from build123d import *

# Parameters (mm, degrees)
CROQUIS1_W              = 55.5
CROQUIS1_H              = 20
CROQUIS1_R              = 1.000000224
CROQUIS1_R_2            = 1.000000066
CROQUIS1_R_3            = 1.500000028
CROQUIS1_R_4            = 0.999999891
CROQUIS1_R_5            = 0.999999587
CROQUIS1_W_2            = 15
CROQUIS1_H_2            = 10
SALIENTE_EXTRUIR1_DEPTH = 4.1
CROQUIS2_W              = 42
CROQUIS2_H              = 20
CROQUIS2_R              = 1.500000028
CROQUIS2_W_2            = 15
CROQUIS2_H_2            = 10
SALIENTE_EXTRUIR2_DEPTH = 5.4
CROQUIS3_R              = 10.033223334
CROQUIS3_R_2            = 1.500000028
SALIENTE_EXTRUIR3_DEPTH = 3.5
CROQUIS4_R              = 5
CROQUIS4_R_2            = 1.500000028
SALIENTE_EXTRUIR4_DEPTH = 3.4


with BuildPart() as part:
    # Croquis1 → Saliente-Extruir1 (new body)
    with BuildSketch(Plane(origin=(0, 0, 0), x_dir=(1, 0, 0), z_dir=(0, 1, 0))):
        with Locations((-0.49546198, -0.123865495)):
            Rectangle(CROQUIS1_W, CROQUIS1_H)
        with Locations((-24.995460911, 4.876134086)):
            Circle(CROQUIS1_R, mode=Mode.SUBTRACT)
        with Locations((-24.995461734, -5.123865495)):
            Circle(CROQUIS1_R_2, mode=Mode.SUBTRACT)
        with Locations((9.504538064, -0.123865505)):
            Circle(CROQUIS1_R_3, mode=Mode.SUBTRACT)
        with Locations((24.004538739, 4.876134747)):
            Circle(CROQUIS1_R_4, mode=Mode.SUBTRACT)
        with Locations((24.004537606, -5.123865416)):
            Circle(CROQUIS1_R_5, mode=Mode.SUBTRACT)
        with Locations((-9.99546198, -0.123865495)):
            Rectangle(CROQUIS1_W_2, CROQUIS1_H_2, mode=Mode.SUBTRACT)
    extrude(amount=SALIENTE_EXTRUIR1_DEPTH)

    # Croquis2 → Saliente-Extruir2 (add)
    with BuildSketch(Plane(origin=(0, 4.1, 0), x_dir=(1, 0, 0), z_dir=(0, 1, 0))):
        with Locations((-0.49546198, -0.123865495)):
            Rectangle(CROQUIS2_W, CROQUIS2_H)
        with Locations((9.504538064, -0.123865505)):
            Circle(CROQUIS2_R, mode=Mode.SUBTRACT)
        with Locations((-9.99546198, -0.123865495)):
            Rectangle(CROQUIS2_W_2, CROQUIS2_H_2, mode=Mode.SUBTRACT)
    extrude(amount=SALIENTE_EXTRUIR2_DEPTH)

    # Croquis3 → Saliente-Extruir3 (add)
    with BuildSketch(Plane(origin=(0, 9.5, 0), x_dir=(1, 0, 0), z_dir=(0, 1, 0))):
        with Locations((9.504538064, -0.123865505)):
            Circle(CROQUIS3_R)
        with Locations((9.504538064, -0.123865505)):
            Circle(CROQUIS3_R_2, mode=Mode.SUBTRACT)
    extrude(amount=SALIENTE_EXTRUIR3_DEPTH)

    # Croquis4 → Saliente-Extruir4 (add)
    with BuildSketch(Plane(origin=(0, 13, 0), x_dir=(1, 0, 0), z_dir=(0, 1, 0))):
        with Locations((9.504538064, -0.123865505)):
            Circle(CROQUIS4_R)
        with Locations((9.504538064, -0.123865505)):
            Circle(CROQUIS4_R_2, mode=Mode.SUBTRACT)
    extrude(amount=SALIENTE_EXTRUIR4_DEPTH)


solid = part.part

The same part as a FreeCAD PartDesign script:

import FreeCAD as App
import Part
import Sketcher

V = App.Vector


def add_polygon(sketch, points):
    """Adds a closed chain of lines whose ends are joined by coincident constraints."""
    first, n = sketch.GeometryCount, len(points)
    for a, b in zip(points, points[1:] + points[:1]):
        sketch.addGeometry(Part.LineSegment(App.Vector(*a, 0), App.Vector(*b, 0)), False)
    for i in range(n):
        sketch.addConstraint(Sketcher.Constraint("Coincident", first + i, 2, first + (i + 1) % n, 1))

doc = App.newDocument("Part")
body = doc.addObject("PartDesign::Body", "Body")

# Sketch on XZ plane
sketch1 = body.newObject("Sketcher::SketchObject", "Sketch")
sketch1.AttachmentSupport = (doc.getObject("XZ_Plane"), [""])
sketch1.MapMode = "FlatFace"
add_polygon(sketch1, [(-28.2, -9.9), (-28.2, 10.1), (27.3, 10.1), (27.3, -9.9)])  # lines 0-3
sketch1.addGeometry(Part.Circle(V(-25, 5.1, 0), V(0, 0, 1), 1), False)  # 4
add_polygon(sketch1, [(-2.5, 5.1), (-17.5, 5.1), (-17.5, -4.9), (-2.5, -4.9)])  # lines 5-8
sketch1.addGeometry(Part.Circle(V(24, 5.1, 0), V(0, 0, 1), 1), False)  # 9
sketch1.addGeometry(Part.Circle(V(9.5, 0.1, 0), V(0, 0, 1), 1.5), False)  # 10
sketch1.addGeometry(Part.Circle(V(-25, -4.9, 0), V(0, 0, 1), 1), False)  # 11
sketch1.addGeometry(Part.Circle(V(24, -4.9, 0), V(0, 0, 1), 1), False)  # 12
sketch1.addConstraint([
    Sketcher.Constraint("Vertical", 0),
    Sketcher.Constraint("Horizontal", 1),
    Sketcher.Constraint("Vertical", 2),
    Sketcher.Constraint("Horizontal", 3),
    Sketcher.Constraint("Horizontal", 5),
    Sketcher.Constraint("Vertical", 6),
    Sketcher.Constraint("Horizontal", 7),
    Sketcher.Constraint("Vertical", 8),
    Sketcher.Constraint("Equal", 4, 9),
    Sketcher.Constraint("Equal", 9, 11),
    Sketcher.Constraint("Equal", 11, 12),
    Sketcher.Constraint("Horizontal", 4, 3, 9, 3),
    Sketcher.Constraint("Horizontal", 11, 3, 12, 3),
    Sketcher.Constraint("Horizontal", 9, 3, 5, 2),
    Sketcher.Constraint("Horizontal", 12, 3, 6, 2),
    Sketcher.Constraint("Vertical", 4, 3, 11, 3),
    Sketcher.Constraint("Vertical", 9, 3, 12, 3),
    Sketcher.Constraint("Diameter", 4, 2.0),
    Sketcher.Constraint("Diameter", 10, 3.0),
    Sketcher.Constraint("DistanceX", 5, 2, 5, 1, 15.0),
    Sketcher.Constraint("DistanceY", 0, 1, 0, 2, 20.0),
    Sketcher.Constraint("DistanceY", 6, 2, 6, 1, 10.0),
    Sketcher.Constraint("DistanceX", 1, 1, 1, 2, 55.5),
    Sketcher.Constraint("DistanceX", 4, 3, 9, 3, 48.999999),
    Sketcher.Constraint("DistanceY", 10, 3, 9, 3, 5.0),
    Sketcher.Constraint("DistanceY", 4, 3, 0, 2, 5.0),
    Sketcher.Constraint("DistanceX", 5, 2, 10, 3, 27.0),
    Sketcher.Constraint("DistanceX", 10, 3, 9, 3, 14.5),
    Sketcher.Constraint("DistanceX", 0, 2, 4, 3, 3.25),
    Sketcher.Constraint("DistanceX", 4, 3, -1, 1, 24.995462),
    Sketcher.Constraint("DistanceY", -1, 1, 4, 3, 5.123865),
])
pad1 = body.newObject("PartDesign::Pad", "Pad")
pad1.Profile = sketch1
pad1.Length = 4.1
pad1.Reversed = True

# Sketch on XZ plane
sketch2 = body.newObject("Sketcher::SketchObject", "Sketch001")
sketch2.AttachmentSupport = (doc.getObject("XZ_Plane"), [""])
sketch2.MapMode = "FlatFace"
sketch2.AttachmentOffset = App.Placement(V(0, 0, -4.1), App.Rotation())
add_polygon(sketch2, [(-21.5, -9.9), (-21.5, 10.1), (20.5, 10.1), (20.5, -9.9)])  # lines 0-3
sketch2.addGeometry(Part.Circle(V(9.5, 0.1, 0), V(0, 0, 1), 1.5), False)  # 4
add_polygon(sketch2, [(-2.5, 5.1), (-17.5, 5.1), (-17.5, -4.9), (-2.5, -4.9)])  # lines 5-8
sketch2.addConstraint([
    Sketcher.Constraint("Vertical", 0),
    Sketcher.Constraint("Horizontal", 1),
    Sketcher.Constraint("Vertical", 2),
    Sketcher.Constraint("Horizontal", 3),
    Sketcher.Constraint("Horizontal", 5),
    Sketcher.Constraint("Vertical", 6),
    Sketcher.Constraint("Horizontal", 7),
    Sketcher.Constraint("Vertical", 8),
    Sketcher.Constraint("Diameter", 4, 3.0),
    Sketcher.Constraint("DistanceX", 1, 1, 1, 2, 42.0),
    Sketcher.Constraint("DistanceX", 5, 2, 5, 1, 15.0),
    Sketcher.Constraint("DistanceY", 0, 1, 0, 2, 20.0),
    Sketcher.Constraint("DistanceY", 6, 2, 6, 1, 10.0),
    Sketcher.Constraint("DistanceX", 0, 2, 4, 3, 31.0),
    Sketcher.Constraint("DistanceY", 4, 3, 0, 2, 10.0),
    Sketcher.Constraint("DistanceX", 0, 2, 5, 2, 4.0),
    Sketcher.Constraint("DistanceY", 5, 2, 0, 2, 5.0),
    Sketcher.Constraint("DistanceX", -1, 1, 4, 3, 9.504538),
    Sketcher.Constraint("DistanceY", -1, 1, 4, 3, 0.123866),
])
pad2 = body.newObject("PartDesign::Pad", "Pad001")
pad2.Profile = sketch2
pad2.Length = 5.4
pad2.Reversed = True

# Sketch on XZ plane
sketch3 = body.newObject("Sketcher::SketchObject", "Sketch002")
sketch3.AttachmentSupport = (doc.getObject("XZ_Plane"), [""])
sketch3.MapMode = "FlatFace"
sketch3.AttachmentOffset = App.Placement(V(0, 0, -9.5), App.Rotation())
sketch3.addGeometry([
    Part.Circle(V(9.5, 0.1, 0), V(0, 0, 1), 10),
    Part.Circle(V(9.5, 0.1, 0), V(0, 0, 1), 1.5),
], False)
sketch3.addConstraint([
    Sketcher.Constraint("Coincident", 1, 3, 0, 3),
    Sketcher.Constraint("Diameter", 1, 3.0),
    Sketcher.Constraint("Diameter", 0, 20.066447),
    Sketcher.Constraint("DistanceX", -1, 1, 0, 3, 9.504538),
    Sketcher.Constraint("DistanceY", -1, 1, 0, 3, 0.123866),
])
pad3 = body.newObject("PartDesign::Pad", "Pad002")
pad3.Profile = sketch3
pad3.Length = 3.5
pad3.Reversed = True

# Sketch on XZ plane
sketch4 = body.newObject("Sketcher::SketchObject", "Sketch003")
sketch4.AttachmentSupport = (doc.getObject("XZ_Plane"), [""])
sketch4.MapMode = "FlatFace"
sketch4.AttachmentOffset = App.Placement(V(0, 0, -13), App.Rotation())
sketch4.addGeometry([
    Part.Circle(V(9.5, 0.1, 0), V(0, 0, 1), 5),
    Part.Circle(V(9.5, 0.1, 0), V(0, 0, 1), 1.5),
], False)
sketch4.addConstraint([
    Sketcher.Constraint("Coincident", 1, 3, 0, 3),
    Sketcher.Constraint("Diameter", 0, 10.0),
    Sketcher.Constraint("Diameter", 1, 3.0),
    Sketcher.Constraint("DistanceX", -1, 1, 0, 3, 9.504538),
    Sketcher.Constraint("DistanceY", -1, 1, 0, 3, 0.123866),
])
pad4 = body.newObject("PartDesign::Pad", "Pad003")
pad4.Profile = sketch4
pad4.Length = 3.4
pad4.Reversed = True

doc.recompute()
